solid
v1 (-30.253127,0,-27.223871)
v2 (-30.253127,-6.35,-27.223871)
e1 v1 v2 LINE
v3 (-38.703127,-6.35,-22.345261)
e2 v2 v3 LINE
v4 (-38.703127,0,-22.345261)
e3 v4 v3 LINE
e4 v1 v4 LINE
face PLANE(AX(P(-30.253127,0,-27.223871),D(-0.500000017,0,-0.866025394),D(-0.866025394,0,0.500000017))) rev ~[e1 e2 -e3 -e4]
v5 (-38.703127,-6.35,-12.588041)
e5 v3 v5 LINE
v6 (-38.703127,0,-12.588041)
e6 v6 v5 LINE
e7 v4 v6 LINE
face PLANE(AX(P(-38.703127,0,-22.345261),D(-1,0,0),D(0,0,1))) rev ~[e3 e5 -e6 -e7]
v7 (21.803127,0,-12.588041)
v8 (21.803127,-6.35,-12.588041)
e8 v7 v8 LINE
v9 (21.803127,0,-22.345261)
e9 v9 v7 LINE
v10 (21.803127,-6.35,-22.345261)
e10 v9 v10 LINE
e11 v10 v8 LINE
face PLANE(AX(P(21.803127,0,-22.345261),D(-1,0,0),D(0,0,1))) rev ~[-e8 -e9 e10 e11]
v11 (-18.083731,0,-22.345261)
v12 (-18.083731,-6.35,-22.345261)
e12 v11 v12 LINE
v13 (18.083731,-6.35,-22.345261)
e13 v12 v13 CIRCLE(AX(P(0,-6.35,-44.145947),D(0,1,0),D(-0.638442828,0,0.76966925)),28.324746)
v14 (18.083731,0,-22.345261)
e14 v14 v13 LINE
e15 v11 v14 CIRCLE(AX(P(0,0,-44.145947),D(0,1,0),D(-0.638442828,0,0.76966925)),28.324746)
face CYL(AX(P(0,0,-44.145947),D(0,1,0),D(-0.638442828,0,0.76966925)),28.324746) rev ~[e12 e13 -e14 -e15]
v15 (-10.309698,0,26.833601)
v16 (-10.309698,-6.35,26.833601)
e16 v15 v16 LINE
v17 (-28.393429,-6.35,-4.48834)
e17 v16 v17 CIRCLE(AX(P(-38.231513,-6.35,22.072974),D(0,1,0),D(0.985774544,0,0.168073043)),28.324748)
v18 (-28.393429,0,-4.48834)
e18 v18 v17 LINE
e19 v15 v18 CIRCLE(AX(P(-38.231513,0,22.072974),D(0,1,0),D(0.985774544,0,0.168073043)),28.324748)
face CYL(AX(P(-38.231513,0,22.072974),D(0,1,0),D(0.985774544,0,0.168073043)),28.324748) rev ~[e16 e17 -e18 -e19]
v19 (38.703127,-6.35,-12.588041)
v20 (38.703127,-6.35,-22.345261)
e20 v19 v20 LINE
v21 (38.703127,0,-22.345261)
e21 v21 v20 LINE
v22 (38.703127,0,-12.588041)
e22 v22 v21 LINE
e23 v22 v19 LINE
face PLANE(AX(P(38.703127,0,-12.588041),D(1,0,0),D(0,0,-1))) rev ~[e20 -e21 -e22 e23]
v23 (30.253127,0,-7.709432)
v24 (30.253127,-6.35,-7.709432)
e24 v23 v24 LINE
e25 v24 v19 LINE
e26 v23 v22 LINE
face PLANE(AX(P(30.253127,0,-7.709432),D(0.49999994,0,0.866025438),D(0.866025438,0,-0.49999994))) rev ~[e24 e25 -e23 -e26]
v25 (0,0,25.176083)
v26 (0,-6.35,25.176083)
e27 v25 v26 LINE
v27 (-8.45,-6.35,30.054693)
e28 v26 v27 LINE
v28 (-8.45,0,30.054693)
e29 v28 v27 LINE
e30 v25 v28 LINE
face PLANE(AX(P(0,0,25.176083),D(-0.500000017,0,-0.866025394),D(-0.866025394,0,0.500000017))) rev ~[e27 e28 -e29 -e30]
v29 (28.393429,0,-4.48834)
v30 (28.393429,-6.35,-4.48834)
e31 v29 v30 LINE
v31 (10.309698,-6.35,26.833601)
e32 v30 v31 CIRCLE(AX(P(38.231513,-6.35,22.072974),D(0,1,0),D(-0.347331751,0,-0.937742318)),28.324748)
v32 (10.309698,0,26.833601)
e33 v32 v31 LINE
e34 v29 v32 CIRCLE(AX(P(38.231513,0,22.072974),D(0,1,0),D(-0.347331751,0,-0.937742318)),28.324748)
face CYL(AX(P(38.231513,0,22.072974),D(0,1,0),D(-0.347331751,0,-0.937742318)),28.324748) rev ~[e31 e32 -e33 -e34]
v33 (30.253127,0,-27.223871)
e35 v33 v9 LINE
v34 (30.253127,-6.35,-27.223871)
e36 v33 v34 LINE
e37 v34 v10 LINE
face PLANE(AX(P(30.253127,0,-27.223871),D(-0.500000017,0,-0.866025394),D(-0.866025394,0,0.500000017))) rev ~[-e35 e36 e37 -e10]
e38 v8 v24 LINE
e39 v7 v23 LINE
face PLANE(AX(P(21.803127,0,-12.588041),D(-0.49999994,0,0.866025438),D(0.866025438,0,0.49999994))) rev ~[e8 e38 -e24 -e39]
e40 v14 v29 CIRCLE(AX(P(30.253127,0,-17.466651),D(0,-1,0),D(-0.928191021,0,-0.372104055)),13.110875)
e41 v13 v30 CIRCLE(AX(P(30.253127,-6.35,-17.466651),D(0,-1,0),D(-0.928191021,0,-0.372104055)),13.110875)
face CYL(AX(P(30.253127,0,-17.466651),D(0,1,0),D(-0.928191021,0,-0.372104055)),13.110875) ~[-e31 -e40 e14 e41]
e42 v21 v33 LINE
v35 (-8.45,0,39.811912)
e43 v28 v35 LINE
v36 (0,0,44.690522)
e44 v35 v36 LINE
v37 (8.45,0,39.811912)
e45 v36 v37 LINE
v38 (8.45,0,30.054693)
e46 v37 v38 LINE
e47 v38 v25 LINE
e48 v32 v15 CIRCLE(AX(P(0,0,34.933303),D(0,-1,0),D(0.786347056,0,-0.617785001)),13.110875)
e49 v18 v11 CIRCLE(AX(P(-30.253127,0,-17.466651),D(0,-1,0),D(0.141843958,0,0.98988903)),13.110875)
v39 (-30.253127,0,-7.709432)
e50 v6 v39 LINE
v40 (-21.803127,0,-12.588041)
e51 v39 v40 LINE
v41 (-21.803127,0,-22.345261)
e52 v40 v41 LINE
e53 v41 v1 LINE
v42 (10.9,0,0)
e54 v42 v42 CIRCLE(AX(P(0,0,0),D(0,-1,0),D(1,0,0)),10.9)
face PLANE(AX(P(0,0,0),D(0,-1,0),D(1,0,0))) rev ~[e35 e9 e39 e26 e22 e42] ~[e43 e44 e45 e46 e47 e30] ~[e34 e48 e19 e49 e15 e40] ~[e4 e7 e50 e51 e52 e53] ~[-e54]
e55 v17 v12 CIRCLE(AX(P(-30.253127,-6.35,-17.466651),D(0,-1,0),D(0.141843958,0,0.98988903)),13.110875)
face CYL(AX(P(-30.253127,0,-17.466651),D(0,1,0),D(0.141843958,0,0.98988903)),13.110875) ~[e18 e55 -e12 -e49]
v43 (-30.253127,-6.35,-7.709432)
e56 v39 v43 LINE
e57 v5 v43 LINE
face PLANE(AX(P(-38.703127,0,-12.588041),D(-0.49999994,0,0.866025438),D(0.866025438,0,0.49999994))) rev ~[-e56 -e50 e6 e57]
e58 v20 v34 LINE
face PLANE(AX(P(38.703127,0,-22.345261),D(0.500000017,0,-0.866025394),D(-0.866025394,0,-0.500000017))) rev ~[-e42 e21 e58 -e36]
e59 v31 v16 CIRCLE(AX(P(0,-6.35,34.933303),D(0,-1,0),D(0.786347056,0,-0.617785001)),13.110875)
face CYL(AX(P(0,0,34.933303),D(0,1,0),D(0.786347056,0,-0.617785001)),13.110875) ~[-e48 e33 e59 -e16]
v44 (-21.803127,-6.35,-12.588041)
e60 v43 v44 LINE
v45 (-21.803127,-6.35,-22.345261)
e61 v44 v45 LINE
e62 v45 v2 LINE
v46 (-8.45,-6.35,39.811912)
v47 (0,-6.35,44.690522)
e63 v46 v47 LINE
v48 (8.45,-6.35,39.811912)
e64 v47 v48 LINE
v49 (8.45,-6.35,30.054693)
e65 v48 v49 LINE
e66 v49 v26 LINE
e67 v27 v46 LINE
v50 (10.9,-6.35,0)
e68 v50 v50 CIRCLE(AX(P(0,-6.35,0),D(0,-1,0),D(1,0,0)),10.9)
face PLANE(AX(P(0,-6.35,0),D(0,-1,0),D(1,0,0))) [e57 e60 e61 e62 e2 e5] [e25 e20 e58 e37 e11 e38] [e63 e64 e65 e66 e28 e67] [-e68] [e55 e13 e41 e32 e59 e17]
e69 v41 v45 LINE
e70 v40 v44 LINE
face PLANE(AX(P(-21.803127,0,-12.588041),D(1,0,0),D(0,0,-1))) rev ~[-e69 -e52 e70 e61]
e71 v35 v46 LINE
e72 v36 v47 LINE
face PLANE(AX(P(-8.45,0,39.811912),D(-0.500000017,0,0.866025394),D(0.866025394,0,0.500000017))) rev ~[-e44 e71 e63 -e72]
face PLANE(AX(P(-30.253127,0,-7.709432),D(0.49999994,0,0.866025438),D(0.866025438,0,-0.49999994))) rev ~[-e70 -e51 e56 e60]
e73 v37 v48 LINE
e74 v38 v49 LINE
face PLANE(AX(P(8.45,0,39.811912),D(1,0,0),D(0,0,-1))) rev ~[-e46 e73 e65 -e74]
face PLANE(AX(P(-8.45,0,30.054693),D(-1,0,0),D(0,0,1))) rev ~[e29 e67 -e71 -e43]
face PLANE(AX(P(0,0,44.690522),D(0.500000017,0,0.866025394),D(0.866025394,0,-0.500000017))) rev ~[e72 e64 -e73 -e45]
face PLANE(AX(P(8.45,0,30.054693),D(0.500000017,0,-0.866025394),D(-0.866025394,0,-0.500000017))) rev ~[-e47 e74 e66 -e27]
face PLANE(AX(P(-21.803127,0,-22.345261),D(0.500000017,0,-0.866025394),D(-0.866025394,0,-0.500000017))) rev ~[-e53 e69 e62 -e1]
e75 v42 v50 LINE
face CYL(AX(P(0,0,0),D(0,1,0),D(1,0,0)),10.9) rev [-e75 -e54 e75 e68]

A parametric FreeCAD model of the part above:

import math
import FreeCAD as App
import Part
import Sketcher
from FreeCAD import Vector
Q = App.Units.Quantity


def add_polygon(sketch, points):
    """Adds a closed chain of lines whose ends are joined by coincident constraints."""
    first, n = sketch.GeometryCount, len(points)
    for a, b in zip(points, points[1:] + points[:1]):
        sketch.addGeometry(Part.LineSegment(App.Vector(*a, 0), App.Vector(*b, 0)), False)
    for i in range(n):
        sketch.addConstraint(Sketcher.Constraint("Coincident", first + i, 2, first + (i + 1) % n, 1))

doc = App.newDocument("Part")
params = doc.addObject("Spreadsheet::Sheet", "Params")
for row, (alias, value) in enumerate([
    ("sketch1_diameter", "21.8 mm"),
    ("pad1_length", "6.35 mm"),
], start=1):
    params.set(f"A{row}", alias)
    params.set(f"B{row}", "=" + value)
    params.setAlias(f"B{row}", alias)

body = doc.addObject("PartDesign::Body", "Body")

sketch1 = doc.addObject("Sketcher::SketchObject", "Sketch")
body.addObject(sketch1)
sketch1.AttachmentSupport = (doc.XZ_Plane, [""])
sketch1.MapMode = "FlatFace"
sketch1.addGeometry(Part.ArcOfCircle(Part.Circle(Vector(38, 22, 0), Vector(0, 0, 1), 28), math.radians(170), math.radians(250)), False)
sketch1.addGeometry(Part.ArcOfCircle(Part.Circle(Vector(0, 35, 0), Vector(0, 0, 1), 13), math.radians(-38), math.radians(218)), False)
sketch1.addGeometry(Part.ArcOfCircle(Part.Circle(Vector(-38, 22, 0), Vector(0, 0, 1), 28), math.radians(-70), math.radians(10)), False)
sketch1.addGeometry(Part.ArcOfCircle(Part.Circle(Vector(-30, -17, 0), Vector(0, 0, 1), 13), math.radians(82), math.radians(338)), False)
sketch1.addGeometry(Part.ArcOfCircle(Part.Circle(Vector(0, -44, 0), Vector(0, 0, 1), 28), math.radians(50), math.radians(130)), False)
sketch1.addGeometry(Part.ArcOfCircle(Part.Circle(Vector(30, -17, 0), Vector(0, 0, 1), 13), math.radians(-158), math.radians(98)), False)
add_polygon(sketch1, [(-30, -8), (-22, -13), (-22, -22), (-30, -27), (-39, -22), (-39, -13)])
add_polygon(sketch1, [(22, -22), (22, -13), (30, -8), (39, -13), (39, -22), (30, -27)])
sketch1.addGeometry(Part.Circle(Vector(0, 0, 0), Vector(0, 0, 1), 11), False)
add_polygon(sketch1, [(-8, 40), (0, 45), (8, 40), (8, 30), (0, 25), (-8, 30)])
sketch1.addConstraint(Sketcher.Constraint("Coincident", 0, 1, 1, 1))
sketch1.addConstraint(Sketcher.Constraint("Coincident", 1, 2, 2, 2))
sketch1.addConstraint(Sketcher.Constraint("Coincident", 2, 1, 3, 1))
sketch1.addConstraint(Sketcher.Constraint("Coincident", 3, 2, 4, 2))
sketch1.addConstraint(Sketcher.Constraint("Coincident", 4, 1, 5, 1))
sketch1.addConstraint(Sketcher.Constraint("Coincident", 5, 2, 0, 2))
sketch1.addConstraint(Sketcher.Constraint("Vertical", 7))
sketch1.addConstraint(Sketcher.Constraint("Vertical", 10))
sketch1.addConstraint(Sketcher.Constraint("Vertical", 12))
sketch1.addConstraint(Sketcher.Constraint("Vertical", 15))
sketch1.addConstraint(Sketcher.Constraint("Vertical", 21))
sketch1.addConstraint(Sketcher.Constraint("Vertical", 24))
sketch1.addConstraint(Sketcher.Constraint("Coincident", 18, 3, -1, 1))
sketch1.addConstraint(Sketcher.Constraint("Equal", 0, 2))
sketch1.addConstraint(Sketcher.Constraint("Equal", 1, 3))
sketch1.addConstraint(Sketcher.Constraint("Equal", 2, 4))
sketch1.addConstraint(Sketcher.Constraint("Equal", 3, 5))
sketch1.addConstraint(Sketcher.Constraint("Symmetric", 0, 3, 2, 3, -2))
sketch1.addConstraint(Sketcher.Constraint("Symmetric", 3, 3, 5, 3, -2))
sketch1.addConstraint(Sketcher.Constraint("Symmetric", 6, 2, 12, 2, -2))
sketch1.addConstraint(Sketcher.Constraint("Symmetric", 11, 2, 13, 2, -2))
sketch1.addConstraint(Sketcher.Constraint("Symmetric", 10, 2, 14, 2, -2))
sketch1.addConstraint(Sketcher.Constraint("Symmetric", 8, 2, 16, 2, -2))
sketch1.addConstraint(Sketcher.Constraint("Symmetric", 21, 2, 23, 2, -2))
sketch1.addConstraint(Sketcher.Constraint("PointOnObject", 1, 3, -2))
sketch1.addConstraint(Sketcher.Constraint("PointOnObject", 4, 3, -2))
sketch1.addConstraint(Sketcher.Constraint("PointOnObject", 19, 2, -2))
sketch1.addConstraint(Sketcher.Constraint("PointOnObject", 22, 2, -2))
sketch1.addConstraint(Sketcher.Constraint("Parallel", 6, 9))
sketch1.addConstraint(Sketcher.Constraint("Parallel", 8, 11))
sketch1.addConstraint(Sketcher.Constraint("Parallel", 11, 13))
sketch1.addConstraint(Sketcher.Constraint("Parallel", 13, 16))
sketch1.addConstraint(Sketcher.Constraint("Parallel", 14, 17))
sketch1.addConstraint(Sketcher.Constraint("Parallel", 16, 19))
sketch1.addConstraint(Sketcher.Constraint("Parallel", 17, 20))
sketch1.addConstraint(Sketcher.Constraint("Parallel", 19, 22))
sketch1.addConstraint(Sketcher.Constraint("Horizontal", 4, 1, 7, 2))
sketch1.addConstraint(Sketcher.Constraint("Horizontal", 7, 2, 9, 2))
sketch1.addConstraint(Sketcher.Constraint("Horizontal", 6, 2, 10, 2))
sketch1.addConstraint(Sketcher.Constraint("Vertical", 3, 3, 8, 2))
sketch1.addConstraint(Sketcher.Constraint("Equal", 15, 21))
sketch1.addConstraint(Sketcher.Constraint("Equal", 17, 19))
sketch1.addConstraint(Sketcher.Constraint("Diameter", 18, Q("21.8 mm")))
sketch1.addConstraint(Sketcher.Constraint("Angle", 6, Q("-29.999996 deg")))
sketch1.addConstraint(Sketcher.Constraint("DistanceX", 9, 2, 7, 2, Q("16.9 mm")))
sketch1.addConstraint(Sketcher.Constraint("Radius", 0, Q("28.324748 mm")))
sketch1.addConstraint(Sketcher.Constraint("Radius", 1, Q("13.110875 mm")))
sketch1.addConstraint(Sketcher.Constraint("DistanceY", 7, 2, 7, 1, Q("9.75722 mm")))
sketch1.addConstraint(Sketcher.Constraint("DistanceY", -1, 1, 0, 1, Q("26.833601 mm")))
sketch1.addConstraint(Sketcher.Constraint("DistanceX", 1, 2, -1, 1, Q("10.309698 mm")))
sketch1.addConstraint(Sketcher.Constraint("DistanceX", 3, 3, 2, 1, Q("1.859698 mm")))
sketch1.addConstraint(Sketcher.Constraint("DistanceY", 6, 2, 2, 1, Q("8.099701 mm")))
sketch1.addConstraint(Sketcher.Constraint("DistanceY", 3, 3, -1, 1, Q("17.466651 mm")))
sketch1.addConstraint(Sketcher.Constraint("DistanceX", 2, 1, -1, 1, Q("28.393429 mm")))
sketch1.addConstraint(Sketcher.Constraint("DistanceY", 1, 3, 19, 2, Q("9.757219 mm")))
sketch1.setExpression("Constraints[60]", "Params.sketch1_diameter")
pad1 = doc.addObject("PartDesign::Pad", "Pad")
body.addObject(pad1)
pad1.Profile = sketch1
pad1.setExpression("Length", "Params.pad1_length")

doc.recompute()
